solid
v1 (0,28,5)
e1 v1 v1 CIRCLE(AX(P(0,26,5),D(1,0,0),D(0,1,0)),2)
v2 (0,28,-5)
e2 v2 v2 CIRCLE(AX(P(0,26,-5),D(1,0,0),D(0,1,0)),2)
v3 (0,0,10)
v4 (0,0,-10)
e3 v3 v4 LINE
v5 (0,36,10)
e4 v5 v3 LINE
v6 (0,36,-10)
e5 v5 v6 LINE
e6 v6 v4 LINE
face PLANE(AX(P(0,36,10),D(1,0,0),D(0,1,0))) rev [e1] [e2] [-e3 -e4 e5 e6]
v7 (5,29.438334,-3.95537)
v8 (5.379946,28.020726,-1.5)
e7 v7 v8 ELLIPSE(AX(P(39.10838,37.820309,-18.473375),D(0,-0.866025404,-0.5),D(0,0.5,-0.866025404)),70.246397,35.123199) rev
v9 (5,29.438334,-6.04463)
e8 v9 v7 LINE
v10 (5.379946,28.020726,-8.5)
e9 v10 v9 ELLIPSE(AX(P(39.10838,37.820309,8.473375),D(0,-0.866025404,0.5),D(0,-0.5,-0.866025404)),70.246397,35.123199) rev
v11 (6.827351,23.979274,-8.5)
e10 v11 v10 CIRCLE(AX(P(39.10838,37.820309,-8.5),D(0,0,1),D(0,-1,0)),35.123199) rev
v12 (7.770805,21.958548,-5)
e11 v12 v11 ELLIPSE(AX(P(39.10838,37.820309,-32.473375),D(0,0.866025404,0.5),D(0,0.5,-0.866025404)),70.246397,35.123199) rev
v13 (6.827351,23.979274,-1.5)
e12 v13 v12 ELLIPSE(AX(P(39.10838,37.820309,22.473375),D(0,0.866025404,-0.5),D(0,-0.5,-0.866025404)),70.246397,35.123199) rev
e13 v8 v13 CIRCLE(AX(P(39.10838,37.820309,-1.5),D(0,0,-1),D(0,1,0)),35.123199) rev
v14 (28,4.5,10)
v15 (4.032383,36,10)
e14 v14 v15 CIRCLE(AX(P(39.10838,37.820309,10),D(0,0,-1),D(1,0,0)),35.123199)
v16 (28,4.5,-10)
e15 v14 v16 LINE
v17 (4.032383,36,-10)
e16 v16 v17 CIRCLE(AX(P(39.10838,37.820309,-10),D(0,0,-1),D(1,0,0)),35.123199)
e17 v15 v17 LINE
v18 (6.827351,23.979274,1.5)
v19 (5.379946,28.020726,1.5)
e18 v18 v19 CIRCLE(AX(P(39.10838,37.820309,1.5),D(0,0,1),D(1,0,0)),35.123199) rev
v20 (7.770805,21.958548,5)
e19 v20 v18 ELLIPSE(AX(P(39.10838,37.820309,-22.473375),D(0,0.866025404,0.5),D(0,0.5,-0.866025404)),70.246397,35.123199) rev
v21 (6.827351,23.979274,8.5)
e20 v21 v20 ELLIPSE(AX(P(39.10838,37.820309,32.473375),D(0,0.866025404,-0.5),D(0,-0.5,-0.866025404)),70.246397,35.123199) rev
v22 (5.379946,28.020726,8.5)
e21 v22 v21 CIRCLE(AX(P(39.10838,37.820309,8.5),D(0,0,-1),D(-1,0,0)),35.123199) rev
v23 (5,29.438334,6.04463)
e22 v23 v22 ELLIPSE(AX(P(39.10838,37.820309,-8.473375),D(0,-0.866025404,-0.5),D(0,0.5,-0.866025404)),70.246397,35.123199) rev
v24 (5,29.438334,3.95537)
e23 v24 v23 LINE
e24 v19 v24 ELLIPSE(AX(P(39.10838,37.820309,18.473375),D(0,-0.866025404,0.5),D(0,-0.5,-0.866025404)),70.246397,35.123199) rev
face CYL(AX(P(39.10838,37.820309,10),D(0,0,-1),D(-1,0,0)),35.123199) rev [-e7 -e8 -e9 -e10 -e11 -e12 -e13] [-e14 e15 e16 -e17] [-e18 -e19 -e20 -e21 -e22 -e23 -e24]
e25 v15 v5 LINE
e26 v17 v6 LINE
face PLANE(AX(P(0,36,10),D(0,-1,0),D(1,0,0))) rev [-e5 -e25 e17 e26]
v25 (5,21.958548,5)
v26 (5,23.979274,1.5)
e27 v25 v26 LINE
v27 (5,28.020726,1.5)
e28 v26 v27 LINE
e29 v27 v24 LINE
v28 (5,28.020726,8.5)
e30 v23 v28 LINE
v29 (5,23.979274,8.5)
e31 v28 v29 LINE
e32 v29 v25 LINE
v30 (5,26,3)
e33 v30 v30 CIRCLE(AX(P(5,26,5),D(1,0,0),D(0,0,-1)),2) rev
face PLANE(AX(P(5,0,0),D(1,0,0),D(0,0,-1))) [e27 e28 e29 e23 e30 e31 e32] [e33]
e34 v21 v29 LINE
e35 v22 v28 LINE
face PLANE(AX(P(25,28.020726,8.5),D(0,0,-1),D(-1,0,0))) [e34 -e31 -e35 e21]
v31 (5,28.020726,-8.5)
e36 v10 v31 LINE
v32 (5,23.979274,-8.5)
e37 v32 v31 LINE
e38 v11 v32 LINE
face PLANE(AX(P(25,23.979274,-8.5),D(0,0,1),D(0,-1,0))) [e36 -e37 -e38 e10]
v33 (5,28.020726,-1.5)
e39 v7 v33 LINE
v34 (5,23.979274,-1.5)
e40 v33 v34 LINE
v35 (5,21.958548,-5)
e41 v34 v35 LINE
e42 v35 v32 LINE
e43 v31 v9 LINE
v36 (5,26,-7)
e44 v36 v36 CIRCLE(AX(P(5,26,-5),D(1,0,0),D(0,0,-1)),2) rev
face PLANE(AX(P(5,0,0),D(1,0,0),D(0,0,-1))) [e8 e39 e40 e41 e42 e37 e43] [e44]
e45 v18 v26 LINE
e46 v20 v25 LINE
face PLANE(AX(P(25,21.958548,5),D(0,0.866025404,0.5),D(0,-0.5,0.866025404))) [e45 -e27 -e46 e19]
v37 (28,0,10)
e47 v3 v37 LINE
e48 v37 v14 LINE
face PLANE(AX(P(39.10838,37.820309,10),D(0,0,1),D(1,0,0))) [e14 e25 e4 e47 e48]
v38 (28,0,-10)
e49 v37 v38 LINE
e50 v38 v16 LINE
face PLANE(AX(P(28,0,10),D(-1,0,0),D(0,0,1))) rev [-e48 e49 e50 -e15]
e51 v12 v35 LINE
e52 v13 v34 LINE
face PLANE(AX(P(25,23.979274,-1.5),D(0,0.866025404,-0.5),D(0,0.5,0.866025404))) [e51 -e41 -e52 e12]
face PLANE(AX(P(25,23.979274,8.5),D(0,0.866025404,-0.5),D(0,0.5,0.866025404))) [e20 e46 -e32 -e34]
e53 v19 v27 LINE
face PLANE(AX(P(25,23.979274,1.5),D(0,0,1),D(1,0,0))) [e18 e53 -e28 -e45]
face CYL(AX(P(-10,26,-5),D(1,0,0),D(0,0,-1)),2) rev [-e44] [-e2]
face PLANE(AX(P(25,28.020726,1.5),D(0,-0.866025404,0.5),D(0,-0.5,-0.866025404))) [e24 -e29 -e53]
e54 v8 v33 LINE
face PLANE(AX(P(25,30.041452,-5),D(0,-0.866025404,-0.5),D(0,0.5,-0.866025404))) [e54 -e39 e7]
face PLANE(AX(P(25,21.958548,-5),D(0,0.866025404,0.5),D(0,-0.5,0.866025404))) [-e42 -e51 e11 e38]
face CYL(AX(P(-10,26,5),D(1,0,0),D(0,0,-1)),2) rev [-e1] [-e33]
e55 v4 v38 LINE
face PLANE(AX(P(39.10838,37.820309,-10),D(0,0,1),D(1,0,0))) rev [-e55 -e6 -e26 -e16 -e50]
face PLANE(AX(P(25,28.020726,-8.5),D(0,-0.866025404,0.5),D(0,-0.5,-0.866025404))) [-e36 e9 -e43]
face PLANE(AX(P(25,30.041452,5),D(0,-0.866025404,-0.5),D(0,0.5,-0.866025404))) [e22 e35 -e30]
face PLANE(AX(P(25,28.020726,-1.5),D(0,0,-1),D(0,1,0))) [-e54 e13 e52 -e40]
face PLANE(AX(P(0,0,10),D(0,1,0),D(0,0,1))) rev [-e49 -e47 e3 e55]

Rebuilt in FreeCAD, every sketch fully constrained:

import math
import FreeCAD as App
import Part
import Sketcher
Q = App.Units.Quantity


def add_polygon(sketch, points):
    """Adds a closed chain of lines whose ends are joined by coincident constraints."""
    first, n = sketch.GeometryCount, len(points)
    for a, b in zip(points, points[1:] + points[:1]):
        sketch.addGeometry(Part.LineSegment(App.Vector(*a, 0), App.Vector(*b, 0)), False)
    for i in range(n):
        sketch.addConstraint(Sketcher.Constraint("Coincident", first + i, 2, first + (i + 1) % n, 1))

doc = App.newDocument("Part")
body = doc.addObject("PartDesign::Body", "Body")

# Sketch on XY plane
sketch1 = doc.addObject("Sketcher::SketchObject", "Sketch")
body.addObject(sketch1)
sketch1.AttachmentSupport = (doc.XY_Plane, [""])
sketch1.MapMode = "FlatFace"
sketch1.addGeometry([
    Part.LineSegment(App.Vector(0, 36, 0), App.Vector(0, 0, 0)),  # 0
    Part.LineSegment(App.Vector(0, 0, 0), App.Vector(28, 0, 0)),  # 1
    Part.LineSegment(App.Vector(28, 0, 0), App.Vector(28, 4.5, 0)),  # 2
    Part.ArcOfCircle(Part.Circle(App.Vector(39.10838, 37.820309, 0), App.Vector(0, 0, 1), 35.123199), math.radians(-177.029235), math.radians(-108.437441)),  # 3
    Part.LineSegment(App.Vector(4.032383, 36, 0), App.Vector(0, 36, 0)),  # 4
], False)
sketch1.addConstraint([
    Sketcher.Constraint("Coincident", 0, 2, 1, 1),
    Sketcher.Constraint("Coincident", 1, 2, 2, 1),
    Sketcher.Constraint("Coincident", 2, 2, 3, 2),
    Sketcher.Constraint("Coincident", 3, 1, 4, 1),
    Sketcher.Constraint("Coincident", 4, 2, 0, 1),
    Sketcher.Constraint("Vertical", 0),
    Sketcher.Constraint("Horizontal", 1),
    Sketcher.Constraint("Vertical", 2),
    Sketcher.Constraint("Horizontal", 4),
    Sketcher.Constraint("Coincident", 0, 2, -1, 1),
    Sketcher.Constraint("DistanceX", 1, 1, 1, 2, Q("28 mm")),
    Sketcher.Constraint("DistanceY", 0, 2, 0, 1, Q("36 mm")),
    Sketcher.Constraint("DistanceY", 2, 1, 2, 2, Q("4.5 mm")),
    Sketcher.Constraint("Radius", 3, Q("35.123199 mm")),
    Sketcher.Constraint("DistanceX", 4, 2, 4, 1, Q("4.032383 mm")),
])
pad1 = doc.addObject("PartDesign::Pad", "Pad")
body.addObject(pad1)
pad1.Profile = sketch1
pad1.Length = 20
pad1.Midplane = True

# Sketch on YZ plane
sketch2 = doc.addObject("Sketcher::SketchObject", "Sketch001")
body.addObject(sketch2)
sketch2.AttachmentSupport = (doc.YZ_Plane, [""])
sketch2.MapMode = "FlatFace"
sketch2.addGeometry([
    Part.Circle(App.Vector(26, 5, 0), App.Vector(0, 0, 1), 2),
    Part.Circle(App.Vector(26, -5, 0), App.Vector(0, 0, 1), 2),
], False)
sketch2.addConstraint([
    Sketcher.Constraint("Equal", 0, 1),
    Sketcher.Constraint("Symmetric", 0, 3, 1, 3, -1),
    Sketcher.Constraint("Diameter", 0, Q("4 mm")),
    Sketcher.Constraint("DistanceX", -1, 1, 0, 3, Q("26 mm")),
    Sketcher.Constraint("DistanceY", -1, 1, 0, 3, Q("5 mm")),
])
pocket1 = doc.addObject("PartDesign::Pocket", "Pocket")
body.addObject(pocket1)
pocket1.Profile = sketch2
pocket1.Length = 20
pocket1.Midplane = True

# Sketch on YZ plane
sketch3 = doc.addObject("Sketcher::SketchObject", "Sketch002")
body.addObject(sketch3)
sketch3.AttachmentSupport = (doc.YZ_Plane, [""])
sketch3.MapMode = "FlatFace"
sketch3.AttachmentOffset = App.Placement(App.Vector(0, 0, 5), App.Rotation())
add_polygon(sketch3, [(30.041452, 5), (28.020726, 8.5), (23.979274, 8.5), (21.958548, 5), (23.979274, 1.5), (28.020726, 1.5)])  # lines 0-5
add_polygon(sketch3, [(30.041452, -5), (28.020726, -1.5), (23.979274, -1.5), (21.958548, -5), (23.979274, -8.5), (28.020726, -8.5)])  # lines 6-11
sketch3.addConstraint([
    Sketcher.Constraint("Horizontal", 1),
    Sketcher.Constraint("Horizontal", 4),
    Sketcher.Constraint("Horizontal", 7),
    Sketcher.Constraint("Horizontal", 10),
    Sketcher.Constraint("Symmetric", 4, 2, 6, 2, -1),
    Sketcher.Constraint("Symmetric", 2, 2, 8, 2, -1),
    Sketcher.Constraint("Symmetric", 1, 2, 9, 2, -1),
    Sketcher.Constraint("Symmetric", 5, 2, 11, 2, -1),
    Sketcher.Constraint("Parallel", 0, 3),
    Sketcher.Constraint("Parallel", 2, 5),
    Sketcher.Constraint("Parallel", 3, 6),
    Sketcher.Constraint("Parallel", 5, 8),
    Sketcher.Constraint("Parallel", 8, 11),
    Sketcher.Constraint("Horizontal", 2, 2, 5, 2),
    Sketcher.Constraint("Vertical", 1, 2, 3, 2),
    Sketcher.Constraint("Angle", 0, Q("120 deg")),
    Sketcher.Constraint("DistanceY", -1, 1, 2, 2, Q("5 mm")),
    Sketcher.Constraint("DistanceY", 3, 2, 1, 2, Q("7 mm")),
    Sketcher.Constraint("DistanceX", 1, 2, 1, 1, Q("4.041452 mm")),
    Sketcher.Constraint("DistanceX", -1, 1, 2, 2, Q("21.958548 mm")),
])
pocket2 = doc.addObject("PartDesign::Pocket", "Pocket001")
body.addObject(pocket2)
pocket2.Profile = sketch3
pocket2.Length = 20
pocket2.Reversed = True

doc.recompute()
